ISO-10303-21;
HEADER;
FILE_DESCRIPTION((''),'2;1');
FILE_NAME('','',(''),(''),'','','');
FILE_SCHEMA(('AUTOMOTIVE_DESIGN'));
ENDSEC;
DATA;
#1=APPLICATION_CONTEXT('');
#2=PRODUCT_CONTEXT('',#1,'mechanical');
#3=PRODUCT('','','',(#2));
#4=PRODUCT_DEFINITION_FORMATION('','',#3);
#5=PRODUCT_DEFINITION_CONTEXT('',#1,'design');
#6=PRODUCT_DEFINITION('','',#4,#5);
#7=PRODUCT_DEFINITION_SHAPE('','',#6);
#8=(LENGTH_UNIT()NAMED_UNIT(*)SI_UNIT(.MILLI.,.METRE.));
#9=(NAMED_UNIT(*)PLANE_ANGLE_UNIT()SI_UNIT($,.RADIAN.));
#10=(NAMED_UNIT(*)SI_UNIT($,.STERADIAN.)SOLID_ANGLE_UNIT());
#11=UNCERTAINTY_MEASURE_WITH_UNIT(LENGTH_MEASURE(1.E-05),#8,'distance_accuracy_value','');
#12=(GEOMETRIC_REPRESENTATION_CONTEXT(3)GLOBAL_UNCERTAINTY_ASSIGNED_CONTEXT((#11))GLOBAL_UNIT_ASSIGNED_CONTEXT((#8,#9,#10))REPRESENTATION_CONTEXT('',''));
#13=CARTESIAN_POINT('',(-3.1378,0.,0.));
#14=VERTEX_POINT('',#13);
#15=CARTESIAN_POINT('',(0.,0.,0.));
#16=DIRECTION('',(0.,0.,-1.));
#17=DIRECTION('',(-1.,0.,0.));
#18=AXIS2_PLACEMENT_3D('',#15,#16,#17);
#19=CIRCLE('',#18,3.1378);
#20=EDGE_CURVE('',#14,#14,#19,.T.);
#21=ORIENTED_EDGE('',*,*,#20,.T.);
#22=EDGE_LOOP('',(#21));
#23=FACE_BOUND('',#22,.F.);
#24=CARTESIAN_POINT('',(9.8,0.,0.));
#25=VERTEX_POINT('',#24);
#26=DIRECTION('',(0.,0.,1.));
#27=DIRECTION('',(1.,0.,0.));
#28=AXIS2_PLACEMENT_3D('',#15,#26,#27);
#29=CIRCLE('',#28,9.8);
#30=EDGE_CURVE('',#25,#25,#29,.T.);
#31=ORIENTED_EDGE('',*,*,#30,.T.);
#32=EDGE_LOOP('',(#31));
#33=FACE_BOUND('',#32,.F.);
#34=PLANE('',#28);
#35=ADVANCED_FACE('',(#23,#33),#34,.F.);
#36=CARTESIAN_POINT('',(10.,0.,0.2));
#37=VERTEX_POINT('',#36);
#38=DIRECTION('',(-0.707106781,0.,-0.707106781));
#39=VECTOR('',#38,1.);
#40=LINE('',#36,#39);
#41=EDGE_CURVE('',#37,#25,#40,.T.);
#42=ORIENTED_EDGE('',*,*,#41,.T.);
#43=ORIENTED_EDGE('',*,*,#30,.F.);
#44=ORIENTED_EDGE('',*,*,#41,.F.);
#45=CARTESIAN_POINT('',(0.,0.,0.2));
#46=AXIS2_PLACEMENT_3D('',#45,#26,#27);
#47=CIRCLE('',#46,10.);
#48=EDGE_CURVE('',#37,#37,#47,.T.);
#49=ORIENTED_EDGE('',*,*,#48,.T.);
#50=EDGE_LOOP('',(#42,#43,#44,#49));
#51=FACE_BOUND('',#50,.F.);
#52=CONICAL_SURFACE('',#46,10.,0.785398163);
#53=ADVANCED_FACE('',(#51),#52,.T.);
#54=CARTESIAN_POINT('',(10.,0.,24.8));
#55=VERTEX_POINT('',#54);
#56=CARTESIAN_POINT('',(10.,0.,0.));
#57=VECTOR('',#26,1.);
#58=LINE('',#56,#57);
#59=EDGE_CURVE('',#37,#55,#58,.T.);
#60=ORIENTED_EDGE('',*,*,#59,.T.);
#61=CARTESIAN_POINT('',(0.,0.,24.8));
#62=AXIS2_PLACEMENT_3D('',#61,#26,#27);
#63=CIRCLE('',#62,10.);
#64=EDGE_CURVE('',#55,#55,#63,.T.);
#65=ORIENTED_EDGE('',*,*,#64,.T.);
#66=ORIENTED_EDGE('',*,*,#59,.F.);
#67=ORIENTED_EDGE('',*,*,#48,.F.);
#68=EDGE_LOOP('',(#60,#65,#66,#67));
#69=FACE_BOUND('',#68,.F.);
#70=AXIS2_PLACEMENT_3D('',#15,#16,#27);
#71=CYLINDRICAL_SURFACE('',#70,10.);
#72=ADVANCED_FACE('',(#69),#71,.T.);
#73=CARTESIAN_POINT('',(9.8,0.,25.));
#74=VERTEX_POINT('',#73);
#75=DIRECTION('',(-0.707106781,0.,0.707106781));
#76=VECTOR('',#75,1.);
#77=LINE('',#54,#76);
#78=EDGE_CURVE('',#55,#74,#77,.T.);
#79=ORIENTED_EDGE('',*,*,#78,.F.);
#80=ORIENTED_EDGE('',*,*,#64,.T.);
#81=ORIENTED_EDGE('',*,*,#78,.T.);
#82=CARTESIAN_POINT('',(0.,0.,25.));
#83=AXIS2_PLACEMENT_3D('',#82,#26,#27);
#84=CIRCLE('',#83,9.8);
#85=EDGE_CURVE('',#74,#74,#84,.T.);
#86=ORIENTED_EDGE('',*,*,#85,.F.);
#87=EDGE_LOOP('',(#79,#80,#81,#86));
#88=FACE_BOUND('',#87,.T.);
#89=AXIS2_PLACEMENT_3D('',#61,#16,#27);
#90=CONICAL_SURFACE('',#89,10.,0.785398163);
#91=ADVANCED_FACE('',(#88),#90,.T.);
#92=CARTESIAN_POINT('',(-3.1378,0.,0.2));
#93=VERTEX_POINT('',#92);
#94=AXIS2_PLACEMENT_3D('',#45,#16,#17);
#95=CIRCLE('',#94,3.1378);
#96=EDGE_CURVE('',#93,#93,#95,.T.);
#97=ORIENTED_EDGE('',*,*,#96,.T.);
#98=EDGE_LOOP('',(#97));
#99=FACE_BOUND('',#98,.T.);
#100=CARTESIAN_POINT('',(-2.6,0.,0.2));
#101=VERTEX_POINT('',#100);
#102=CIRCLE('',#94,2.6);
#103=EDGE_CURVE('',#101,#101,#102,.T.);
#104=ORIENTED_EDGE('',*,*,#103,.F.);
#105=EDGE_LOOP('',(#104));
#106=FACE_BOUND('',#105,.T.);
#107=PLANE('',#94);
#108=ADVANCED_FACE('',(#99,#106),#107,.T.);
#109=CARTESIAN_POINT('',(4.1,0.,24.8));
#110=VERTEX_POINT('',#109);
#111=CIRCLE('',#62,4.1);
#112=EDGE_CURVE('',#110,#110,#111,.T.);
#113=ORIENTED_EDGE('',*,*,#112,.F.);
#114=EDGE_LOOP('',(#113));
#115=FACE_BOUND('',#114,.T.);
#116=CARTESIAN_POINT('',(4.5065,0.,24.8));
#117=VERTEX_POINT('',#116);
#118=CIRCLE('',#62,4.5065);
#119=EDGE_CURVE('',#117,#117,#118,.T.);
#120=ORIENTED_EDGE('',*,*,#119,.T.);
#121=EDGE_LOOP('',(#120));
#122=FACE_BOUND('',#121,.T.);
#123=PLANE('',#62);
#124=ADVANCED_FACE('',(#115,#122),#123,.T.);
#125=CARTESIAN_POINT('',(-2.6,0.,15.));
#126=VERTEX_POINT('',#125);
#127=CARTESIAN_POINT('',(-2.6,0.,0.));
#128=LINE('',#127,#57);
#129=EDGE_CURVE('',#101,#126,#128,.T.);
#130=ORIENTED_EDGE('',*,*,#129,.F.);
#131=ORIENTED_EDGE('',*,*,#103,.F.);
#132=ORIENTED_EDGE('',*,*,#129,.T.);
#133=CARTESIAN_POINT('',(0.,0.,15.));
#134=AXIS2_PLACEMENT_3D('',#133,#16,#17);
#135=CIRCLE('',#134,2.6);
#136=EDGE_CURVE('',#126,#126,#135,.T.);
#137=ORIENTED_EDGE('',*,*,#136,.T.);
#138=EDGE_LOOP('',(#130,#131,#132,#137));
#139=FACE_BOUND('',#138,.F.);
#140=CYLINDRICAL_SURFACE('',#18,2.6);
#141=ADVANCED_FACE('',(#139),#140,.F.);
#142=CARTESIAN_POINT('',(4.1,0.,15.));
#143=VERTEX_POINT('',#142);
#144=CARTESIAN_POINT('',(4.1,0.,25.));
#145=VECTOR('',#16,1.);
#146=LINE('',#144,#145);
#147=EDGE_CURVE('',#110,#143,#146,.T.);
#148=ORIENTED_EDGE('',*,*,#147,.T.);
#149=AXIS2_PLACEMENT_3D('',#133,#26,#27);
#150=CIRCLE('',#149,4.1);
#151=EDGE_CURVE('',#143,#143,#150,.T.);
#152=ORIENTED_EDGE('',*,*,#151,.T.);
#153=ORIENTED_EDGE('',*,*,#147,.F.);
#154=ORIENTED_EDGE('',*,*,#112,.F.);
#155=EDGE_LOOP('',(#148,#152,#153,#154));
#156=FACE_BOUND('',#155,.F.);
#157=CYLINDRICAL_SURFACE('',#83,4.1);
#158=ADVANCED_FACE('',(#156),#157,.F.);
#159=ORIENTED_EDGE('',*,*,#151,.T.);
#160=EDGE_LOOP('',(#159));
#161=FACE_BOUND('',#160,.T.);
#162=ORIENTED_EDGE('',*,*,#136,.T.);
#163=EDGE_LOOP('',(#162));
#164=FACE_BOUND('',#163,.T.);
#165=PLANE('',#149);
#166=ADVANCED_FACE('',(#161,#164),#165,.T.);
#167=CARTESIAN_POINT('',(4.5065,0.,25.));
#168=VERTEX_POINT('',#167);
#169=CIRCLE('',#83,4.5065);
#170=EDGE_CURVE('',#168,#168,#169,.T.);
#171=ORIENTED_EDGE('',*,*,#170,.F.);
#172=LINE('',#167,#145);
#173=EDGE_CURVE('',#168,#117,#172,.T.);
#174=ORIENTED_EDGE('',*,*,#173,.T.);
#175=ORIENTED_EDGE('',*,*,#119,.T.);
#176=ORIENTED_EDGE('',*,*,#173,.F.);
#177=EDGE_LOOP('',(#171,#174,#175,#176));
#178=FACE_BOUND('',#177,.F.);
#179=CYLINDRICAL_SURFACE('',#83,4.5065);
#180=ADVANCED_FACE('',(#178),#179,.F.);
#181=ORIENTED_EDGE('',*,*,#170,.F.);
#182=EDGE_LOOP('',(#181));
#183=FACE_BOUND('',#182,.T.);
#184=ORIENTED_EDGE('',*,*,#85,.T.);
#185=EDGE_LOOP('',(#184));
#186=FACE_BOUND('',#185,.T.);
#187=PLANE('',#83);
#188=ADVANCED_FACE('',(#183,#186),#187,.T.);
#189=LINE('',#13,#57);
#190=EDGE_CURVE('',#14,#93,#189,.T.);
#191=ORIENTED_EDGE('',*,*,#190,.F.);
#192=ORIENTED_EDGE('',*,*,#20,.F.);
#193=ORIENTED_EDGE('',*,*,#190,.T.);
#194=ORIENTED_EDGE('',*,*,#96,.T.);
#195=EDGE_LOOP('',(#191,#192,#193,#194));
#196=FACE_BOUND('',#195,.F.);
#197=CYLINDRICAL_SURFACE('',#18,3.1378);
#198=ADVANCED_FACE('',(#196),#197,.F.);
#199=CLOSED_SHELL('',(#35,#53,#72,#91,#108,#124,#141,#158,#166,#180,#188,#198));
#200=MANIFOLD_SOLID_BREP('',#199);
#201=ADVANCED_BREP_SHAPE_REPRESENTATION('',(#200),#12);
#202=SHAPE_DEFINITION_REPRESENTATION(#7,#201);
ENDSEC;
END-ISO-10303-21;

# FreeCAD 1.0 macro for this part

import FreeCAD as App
import Part
import Sketcher
from FreeCAD import Vector


def edges_at(feature, points):
    """Names of the edges that pass closest to the given points."""
    edges = feature.Shape.Edges
    near = lambda p: min(range(len(edges)), key=lambda i: edges[i].distToShape(Part.Vertex(*p))[0])
    return sorted({f"Edge{near(p) + 1}" for p in points})

doc = App.newDocument("Part")
params = doc.addObject("Spreadsheet::Sheet", "Params")
for row, (alias, value) in enumerate([
    ("sketch1_diameter", "20 mm"),
    ("pad1_length", "25 mm"),
    ("sketch2_diameter", "8.2 mm"),
    ("pocket1_length", "10 mm"),
    ("sketch3_diameter", "5.2 mm"),
    ("pocket2_length", "15.175 mm"),
    ("chamfer_size", "0.2 mm"),
    ("chamfer2_size", "0.2 mm"),
    ("pocket3_length", "0.2 mm"),
    ("pocket4_length", "0.2 mm"),
], start=1):
    params.set(f"A{row}", alias)
    params.set(f"B{row}", "=" + value)
    params.setAlias(f"B{row}", alias)

body = doc.addObject("PartDesign::Body", "Body")

sketch1 = body.newObject("Sketcher::SketchObject", "Sketch")
sketch1.AttachmentSupport = (doc.getObject("XY_Plane"), [""])
sketch1.MapMode = "FlatFace"
sketch1.addGeometry(Part.Circle(Vector(0, 0, 0), Vector(0, 0, 1), 10), False)
sketch1.addConstraint([
    Sketcher.Constraint("Coincident", 0, 3, -1, 1),
    Sketcher.Constraint("Diameter", 0, 20.0),
])
sketch1.setExpression("Constraints[1]", "Params.sketch1_diameter")
pad1 = body.newObject("PartDesign::Pad", "Pad")
pad1.Profile = sketch1
pad1.setExpression("Length", "Params.pad1_length")

sketch2 = body.newObject("Sketcher::SketchObject", "Sketch001")
sketch2.AttachmentSupport = (doc.getObject("XY_Plane"), [""])
sketch2.MapMode = "FlatFace"
sketch2.AttachmentOffset = App.Placement(Vector(0, 0, 25), App.Rotation())
sketch2.addGeometry(Part.Circle(Vector(0, 0, 0), Vector(0, 0, 1), 4.1), False)
sketch2.addConstraint([
    Sketcher.Constraint("Coincident", 0, 3, -1, 1),
    Sketcher.Constraint("Diameter", 0, 8.2),
])
sketch2.setExpression("Constraints[1]", "Params.sketch2_diameter")
pocket1 = body.newObject("PartDesign::Pocket", "Pocket")
pocket1.Profile = sketch2
pocket1.setExpression("Length", "Params.pocket1_length")

sketch3 = body.newObject("Sketcher::SketchObject", "Sketch002")
sketch3.AttachmentSupport = (doc.getObject("XY_Plane"), [""])
sketch3.MapMode = "FlatFace"
sketch3.addGeometry(Part.Circle(Vector(0, 0, 0), Vector(0, 0, 1), 2.6), False)
sketch3.addConstraint([
    Sketcher.Constraint("Coincident", 0, 3, -1, 1),
    Sketcher.Constraint("Diameter", 0, 5.2),
])
sketch3.setExpression("Constraints[1]", "Params.sketch3_diameter")
pocket2 = body.newObject("PartDesign::Pocket", "Pocket001")
pocket2.Profile = sketch3
pocket2.setExpression("Length", "Params.pocket2_length")
pocket2.Reversed = True
doc.recompute()

chamfer = body.newObject("PartDesign::Chamfer", "Chamfer")
chamfer.Base = (pocket2, edges_at(pocket2, [(-10, 0, 25)]))
chamfer.setExpression("Size", "Params.chamfer_size")
doc.recompute()

chamfer2 = body.newObject("PartDesign::Chamfer", "Chamfer001")
chamfer2.Base = (chamfer, edges_at(chamfer, [(-10, 0, 0)]))
chamfer2.setExpression("Size", "Params.chamfer2_size")

sketch4 = body.newObject("Sketcher::SketchObject", "Sketch003")
sketch4.AttachmentSupport = (doc.getObject("XY_Plane"), [""])
sketch4.MapMode = "FlatFace"
sketch4.AttachmentOffset = App.Placement(Vector(0, 0, 25), App.Rotation())
sketch4.addGeometry(Part.Circle(Vector(0, 0, 0), Vector(0, 0, 1), 4.5), False)
sketch4.addConstraint([
    Sketcher.Constraint("Coincident", 0, 3, -1, 1),
    Sketcher.Constraint("Diameter", 0, 9.013),
])
pocket3 = body.newObject("PartDesign::Pocket", "Pocket002")
pocket3.Profile = sketch4
pocket3.setExpression("Length", "Params.pocket3_length")

sketch5 = body.newObject("Sketcher::SketchObject", "Sketch004")
sketch5.AttachmentSupport = (doc.getObject("XY_Plane"), [""])
sketch5.MapMode = "FlatFace"
sketch5.addGeometry(Part.Circle(Vector(0, 0, 0), Vector(0, 0, 1), 3.1), False)
sketch5.addConstraint([
    Sketcher.Constraint("Coincident", 0, 3, -1, 1),
    Sketcher.Constraint("Diameter", 0, 6.2756),
])
pocket4 = body.newObject("PartDesign::Pocket", "Pocket003")
pocket4.Profile = sketch5
pocket4.setExpression("Length", "Params.pocket4_length")
pocket4.Reversed = True

doc.recompute()
